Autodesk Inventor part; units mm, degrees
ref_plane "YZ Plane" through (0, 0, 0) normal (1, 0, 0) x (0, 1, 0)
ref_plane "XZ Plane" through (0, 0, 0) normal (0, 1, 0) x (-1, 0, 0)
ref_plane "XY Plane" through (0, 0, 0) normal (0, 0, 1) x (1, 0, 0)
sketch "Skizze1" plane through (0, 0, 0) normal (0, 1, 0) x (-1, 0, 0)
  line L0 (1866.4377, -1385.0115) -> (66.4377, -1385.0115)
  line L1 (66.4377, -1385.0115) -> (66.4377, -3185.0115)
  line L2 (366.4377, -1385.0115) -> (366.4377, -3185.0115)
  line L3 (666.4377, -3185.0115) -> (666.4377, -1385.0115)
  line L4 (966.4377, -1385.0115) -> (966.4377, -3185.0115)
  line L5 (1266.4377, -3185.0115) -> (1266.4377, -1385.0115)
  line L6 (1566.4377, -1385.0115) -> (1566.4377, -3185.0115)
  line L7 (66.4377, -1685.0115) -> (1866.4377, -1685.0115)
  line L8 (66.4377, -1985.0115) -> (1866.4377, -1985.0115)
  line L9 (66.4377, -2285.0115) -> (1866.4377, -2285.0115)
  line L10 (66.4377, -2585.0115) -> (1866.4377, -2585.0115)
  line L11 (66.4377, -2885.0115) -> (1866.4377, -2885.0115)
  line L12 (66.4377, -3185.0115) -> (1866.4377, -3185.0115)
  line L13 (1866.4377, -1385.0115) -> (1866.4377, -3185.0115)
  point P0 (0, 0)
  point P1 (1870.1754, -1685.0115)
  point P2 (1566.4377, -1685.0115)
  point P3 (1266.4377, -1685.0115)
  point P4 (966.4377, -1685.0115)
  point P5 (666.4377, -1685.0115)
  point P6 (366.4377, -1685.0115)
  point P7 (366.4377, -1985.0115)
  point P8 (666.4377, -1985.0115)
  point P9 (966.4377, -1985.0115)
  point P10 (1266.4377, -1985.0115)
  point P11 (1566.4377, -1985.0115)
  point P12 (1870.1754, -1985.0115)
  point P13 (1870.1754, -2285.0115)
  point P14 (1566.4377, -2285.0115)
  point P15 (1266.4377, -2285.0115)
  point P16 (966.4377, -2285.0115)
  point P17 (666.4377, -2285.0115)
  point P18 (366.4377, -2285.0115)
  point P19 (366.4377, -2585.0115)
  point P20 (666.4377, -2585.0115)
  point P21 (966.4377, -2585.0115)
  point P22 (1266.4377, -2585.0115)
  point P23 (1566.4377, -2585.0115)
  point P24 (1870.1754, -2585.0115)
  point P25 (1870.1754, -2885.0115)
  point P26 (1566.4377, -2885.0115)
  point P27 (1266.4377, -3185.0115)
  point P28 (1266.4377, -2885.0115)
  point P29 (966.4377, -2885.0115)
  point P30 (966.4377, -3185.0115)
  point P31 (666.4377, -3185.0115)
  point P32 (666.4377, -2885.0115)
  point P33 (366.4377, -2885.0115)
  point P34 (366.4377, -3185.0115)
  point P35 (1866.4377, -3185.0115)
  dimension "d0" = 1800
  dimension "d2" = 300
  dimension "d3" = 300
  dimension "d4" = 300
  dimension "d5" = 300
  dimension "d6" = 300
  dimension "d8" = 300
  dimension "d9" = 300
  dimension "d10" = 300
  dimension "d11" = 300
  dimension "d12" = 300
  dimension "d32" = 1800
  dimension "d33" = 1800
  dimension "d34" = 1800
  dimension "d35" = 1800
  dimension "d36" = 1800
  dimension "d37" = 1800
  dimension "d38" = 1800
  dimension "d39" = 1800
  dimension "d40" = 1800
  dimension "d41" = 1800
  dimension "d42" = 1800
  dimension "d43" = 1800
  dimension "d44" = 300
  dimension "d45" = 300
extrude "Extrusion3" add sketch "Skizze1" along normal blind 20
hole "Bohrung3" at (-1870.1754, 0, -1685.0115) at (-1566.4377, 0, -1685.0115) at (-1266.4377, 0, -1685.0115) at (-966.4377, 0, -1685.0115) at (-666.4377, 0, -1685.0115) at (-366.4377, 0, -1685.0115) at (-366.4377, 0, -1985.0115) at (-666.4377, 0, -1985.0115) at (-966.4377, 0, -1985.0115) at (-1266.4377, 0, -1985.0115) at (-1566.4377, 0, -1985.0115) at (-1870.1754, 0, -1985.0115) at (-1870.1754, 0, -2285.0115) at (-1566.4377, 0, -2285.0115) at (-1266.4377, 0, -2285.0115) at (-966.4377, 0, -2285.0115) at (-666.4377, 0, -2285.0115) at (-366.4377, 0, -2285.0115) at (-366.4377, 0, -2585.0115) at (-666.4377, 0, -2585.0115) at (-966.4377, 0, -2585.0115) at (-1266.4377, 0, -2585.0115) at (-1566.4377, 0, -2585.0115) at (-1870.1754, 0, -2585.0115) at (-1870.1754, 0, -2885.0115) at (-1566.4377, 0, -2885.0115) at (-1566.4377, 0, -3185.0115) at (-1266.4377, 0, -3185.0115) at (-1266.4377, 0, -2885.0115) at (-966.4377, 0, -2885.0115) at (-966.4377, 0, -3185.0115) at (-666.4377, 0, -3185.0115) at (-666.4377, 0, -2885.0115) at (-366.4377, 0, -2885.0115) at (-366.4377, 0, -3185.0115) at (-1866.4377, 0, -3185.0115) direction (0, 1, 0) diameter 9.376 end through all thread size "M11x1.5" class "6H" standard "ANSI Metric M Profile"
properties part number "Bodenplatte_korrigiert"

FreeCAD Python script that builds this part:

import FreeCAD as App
import Part
import Sketcher
from FreeCAD import Vector
Q = App.Units.Quantity


def add_polygon(sketch, points):
    """Adds a closed chain of lines whose ends are joined by coincident constraints."""
    first, n = sketch.GeometryCount, len(points)
    for a, b in zip(points, points[1:] + points[:1]):
        sketch.addGeometry(Part.LineSegment(App.Vector(*a, 0), App.Vector(*b, 0)), False)
    for i in range(n):
        sketch.addConstraint(Sketcher.Constraint("Coincident", first + i, 2, first + (i + 1) % n, 1))

doc = App.newDocument("Part")
body = doc.addObject("PartDesign::Body", "Body")

sketch1 = doc.addObject("Sketcher::SketchObject", "Sketch")
body.addObject(sketch1)
sketch1.AttachmentSupport = (doc.XZ_Plane, [""])
sketch1.MapMode = "FlatFace"
add_polygon(sketch1, [(-1866, -1385), (-66, -1385), (-66, -3185), (-1866, -3185)])
sketch1.addConstraint(Sketcher.Constraint("Horizontal", 0))
sketch1.addConstraint(Sketcher.Constraint("Vertical", 1))
sketch1.addConstraint(Sketcher.Constraint("Horizontal", 2))
sketch1.addConstraint(Sketcher.Constraint("Vertical", 3))
sketch1.addConstraint(Sketcher.Constraint("Equal", 2, 1))
sketch1.addConstraint(Sketcher.Constraint("DistanceX", 0, 1, 0, 2, Q("1800 mm")))
sketch1.addConstraint(Sketcher.Constraint("DistanceX", 0, 2, -1, 1, Q("66.4377 mm")))
sketch1.addConstraint(Sketcher.Constraint("DistanceY", 0, 2, -1, 1, Q("1385.0115 mm")))
pad1 = doc.addObject("PartDesign::Pad", "Pad")
body.addObject(pad1)
pad1.Profile = sketch1
pad1.Length = 20
pad1.Reversed = True

sketch2 = doc.addObject("Sketcher::SketchObject", "Sketch001")
body.addObject(sketch2)
sketch2.AttachmentSupport = (doc.XZ_Plane, [""])
sketch2.MapMode = "FlatFace"
sketch2.addGeometry(Part.Circle(Vector(-1870.2, -1685, 0), Vector(0, 0, 1), 4.7), False)
sketch2.addGeometry(Part.Circle(Vector(-1566.4, -1685, 0), Vector(0, 0, 1), 4.7), False)
sketch2.addGeometry(Part.Circle(Vector(-1266.4, -1685, 0), Vector(0, 0, 1), 4.7), False)
sketch2.addGeometry(Part.Circle(Vector(-966.4, -1685, 0), Vector(0, 0, 1), 4.7), False)
sketch2.addGeometry(Part.Circle(Vector(-666.4, -1685, 0), Vector(0, 0, 1), 4.7), False)
sketch2.addGeometry(Part.Circle(Vector(-366.4, -1685, 0), Vector(0, 0, 1), 4.7), False)
sketch2.addGeometry(Part.Circle(Vector(-366.4, -1985, 0), Vector(0, 0, 1), 4.7), False)
sketch2.addGeometry(Part.Circle(Vector(-666.4, -1985, 0), Vector(0, 0, 1), 4.7), False)
sketch2.addGeometry(Part.Circle(Vector(-966.4, -1985, 0), Vector(0, 0, 1), 4.7), False)
sketch2.addGeometry(Part.Circle(Vector(-1266.4, -1985, 0), Vector(0, 0, 1), 4.7), False)
sketch2.addGeometry(Part.Circle(Vector(-1566.4, -1985, 0), Vector(0, 0, 1), 4.7), False)
sketch2.addGeometry(Part.Circle(Vector(-1870.2, -1985, 0), Vector(0, 0, 1), 4.7), False)
sketch2.addGeometry(Part.Circle(Vector(-1870.2, -2285, 0), Vector(0, 0, 1), 4.7), False)
sketch2.addGeometry(Part.Circle(Vector(-1566.4, -2285, 0), Vector(0, 0, 1), 4.7), False)
sketch2.addGeometry(Part.Circle(Vector(-1266.4, -2285, 0), Vector(0, 0, 1), 4.7), False)
sketch2.addGeometry(Part.Circle(Vector(-966.4, -2285, 0), Vector(0, 0, 1), 4.7), False)
sketch2.addGeometry(Part.Circle(Vector(-666.4, -2285, 0), Vector(0, 0, 1), 4.7), False)
sketch2.addGeometry(Part.Circle(Vector(-366.4, -2285, 0), Vector(0, 0, 1), 4.7), False)
sketch2.addGeometry(Part.Circle(Vector(-366.4, -2585, 0), Vector(0, 0, 1), 4.7), False)
sketch2.addGeometry(Part.Circle(Vector(-666.4, -2585, 0), Vector(0, 0, 1), 4.7), False)
sketch2.addGeometry(Part.Circle(Vector(-966.4, -2585, 0), Vector(0, 0, 1), 4.7), False)
sketch2.addGeometry(Part.Circle(Vector(-1266.4, -2585, 0), Vector(0, 0, 1), 4.7), False)
sketch2.addGeometry(Part.Circle(Vector(-1566.4, -2585, 0), Vector(0, 0, 1), 4.7), False)
sketch2.addGeometry(Part.Circle(Vector(-1870.2, -2585, 0), Vector(0, 0, 1), 4.7), False)
sketch2.addGeometry(Part.Circle(Vector(-1870.2, -2885, 0), Vector(0, 0, 1), 4.7), False)
sketch2.addGeometry(Part.Circle(Vector(-1566.4, -2885, 0), Vector(0, 0, 1), 4.7), False)
sketch2.addGeometry(Part.Circle(Vector(-1566.4, -3185, 0), Vector(0, 0, 1), 4.7), False)
sketch2.addGeometry(Part.Circle(Vector(-1266.4, -3185, 0), Vector(0, 0, 1), 4.7), False)
sketch2.addGeometry(Part.Circle(Vector(-1266.4, -2885, 0), Vector(0, 0, 1), 4.7), False)
sketch2.addGeometry(Part.Circle(Vector(-966.4, -2885, 0), Vector(0, 0, 1), 4.7), False)
sketch2.addGeometry(Part.Circle(Vector(-966.4, -3185, 0), Vector(0, 0, 1), 4.7), False)
sketch2.addGeometry(Part.Circle(Vector(-666.4, -3185, 0), Vector(0, 0, 1), 4.7), False)
sketch2.addGeometry(Part.Circle(Vector(-666.4, -2885, 0), Vector(0, 0, 1), 4.7), False)
sketch2.addGeometry(Part.Circle(Vector(-366.4, -2885, 0), Vector(0, 0, 1), 4.7), False)
sketch2.addGeometry(Part.Circle(Vector(-366.4, -3185, 0), Vector(0, 0, 1), 4.7), False)
sketch2.addGeometry(Part.Circle(Vector(-1866.4, -3185, 0), Vector(0, 0, 1), 4.7), False)
sketch2.addConstraint(Sketcher.Constraint("Equal", 0, 1))
sketch2.addConstraint(Sketcher.Constraint("Equal", 1, 2))
sketch2.addConstraint(Sketcher.Constraint("Equal", 2, 3))
sketch2.addConstraint(Sketcher.Constraint("Equal", 3, 4))
sketch2.addConstraint(Sketcher.Constraint("Equal", 4, 5))
sketch2.addConstraint(Sketcher.Constraint("Equal", 5, 6))
sketch2.addConstraint(Sketcher.Constraint("Equal", 6, 7))
sketch2.addConstraint(Sketcher.Constraint("Equal", 7, 8))
sketch2.addConstraint(Sketcher.Constraint("Equal", 8, 9))
sketch2.addConstraint(Sketcher.Constraint("Equal", 9, 10))
sketch2.addConstraint(Sketcher.Constraint("Equal", 10, 11))
sketch2.addConstraint(Sketcher.Constraint("Equal", 11, 12))
sketch2.addConstraint(Sketcher.Constraint("Equal", 12, 13))
sketch2.addConstraint(Sketcher.Constraint("Equal", 13, 14))
sketch2.addConstraint(Sketcher.Constraint("Equal", 14, 15))
sketch2.addConstraint(Sketcher.Constraint("Equal", 15, 16))
sketch2.addConstraint(Sketcher.Constraint("Equal", 16, 17))
sketch2.addConstraint(Sketcher.Constraint("Equal", 17, 18))
sketch2.addConstraint(Sketcher.Constraint("Equal", 18, 19))
sketch2.addConstraint(Sketcher.Constraint("Equal", 19, 20))
sketch2.addConstraint(Sketcher.Constraint("Equal", 20, 21))
sketch2.addConstraint(Sketcher.Constraint("Equal", 21, 22))
sketch2.addConstraint(Sketcher.Constraint("Equal", 22, 23))
sketch2.addConstraint(Sketcher.Constraint("Equal", 23, 24))
sketch2.addConstraint(Sketcher.Constraint("Equal", 24, 25))
sketch2.addConstraint(Sketcher.Constraint("Equal", 25, 26))
sketch2.addConstraint(Sketcher.Constraint("Equal", 26, 27))
sketch2.addConstraint(Sketcher.Constraint("Equal", 27, 28))
sketch2.addConstraint(Sketcher.Constraint("Equal", 28, 29))
sketch2.addConstraint(Sketcher.Constraint("Equal", 29, 30))
sketch2.addConstraint(Sketcher.Constraint("Equal", 30, 31))
sketch2.addConstraint(Sketcher.Constraint("Equal", 31, 32))
sketch2.addConstraint(Sketcher.Constraint("Equal", 32, 33))
sketch2.addConstraint(Sketcher.Constraint("Equal", 33, 34))
sketch2.addConstraint(Sketcher.Constraint("Equal", 34, 35))
sketch2.addConstraint(Sketcher.Constraint("Horizontal", 0, 3, 1, 3))
sketch2.addConstraint(Sketcher.Constraint("Horizontal", 1, 3, 2, 3))
sketch2.addConstraint(Sketcher.Constraint("Horizontal", 2, 3, 3, 3))
sketch2.addConstraint(Sketcher.Constraint("Horizontal", 3, 3, 4, 3))
sketch2.addConstraint(Sketcher.Constraint("Horizontal", 4, 3, 5, 3))
sketch2.addConstraint(Sketcher.Constraint("Horizontal", 6, 3, 7, 3))
sketch2.addConstraint(Sketcher.Constraint("Horizontal", 7, 3, 8, 3))
sketch2.addConstraint(Sketcher.Constraint("Horizontal", 8, 3, 9, 3))
sketch2.addConstraint(Sketcher.Constraint("Horizontal", 9, 3, 10, 3))
sketch2.addConstraint(Sketcher.Constraint("Horizontal", 10, 3, 11, 3))
sketch2.addConstraint(Sketcher.Constraint("Horizontal", 12, 3, 13, 3))
sketch2.addConstraint(Sketcher.Constraint("Horizontal", 13, 3, 14, 3))
sketch2.addConstraint(Sketcher.Constraint("Horizontal", 14, 3, 15, 3))
sketch2.addConstraint(Sketcher.Constraint("Horizontal", 15, 3, 16, 3))
sketch2.addConstraint(Sketcher.Constraint("Horizontal", 16, 3, 17, 3))
sketch2.addConstraint(Sketcher.Constraint("Horizontal", 18, 3, 19, 3))
sketch2.addConstraint(Sketcher.Constraint("Horizontal", 19, 3, 20, 3))
sketch2.addConstraint(Sketcher.Constraint("Horizontal", 20, 3, 21, 3))
sketch2.addConstraint(Sketcher.Constraint("Horizontal", 21, 3, 22, 3))
sketch2.addConstraint(Sketcher.Constraint("Horizontal", 22, 3, 23, 3))
sketch2.addConstraint(Sketcher.Constraint("Horizontal", 24, 3, 25, 3))
sketch2.addConstraint(Sketcher.Constraint("Horizontal", 26, 3, 27, 3))
sketch2.addConstraint(Sketcher.Constraint("Horizontal", 25, 3, 28, 3))
sketch2.addConstraint(Sketcher.Constraint("Horizontal", 28, 3, 29, 3))
sketch2.addConstraint(Sketcher.Constraint("Horizontal", 27, 3, 30, 3))
sketch2.addConstraint(Sketcher.Constraint("Horizontal", 30, 3, 31, 3))
sketch2.addConstraint(Sketcher.Constraint("Horizontal", 29, 3, 32, 3))
sketch2.addConstraint(Sketcher.Constraint("Horizontal", 32, 3, 33, 3))
sketch2.addConstraint(Sketcher.Constraint("Horizontal", 31, 3, 34, 3))
sketch2.addConstraint(Sketcher.Constraint("Horizontal", 34, 3, 35, 3))
sketch2.addConstraint(Sketcher.Constraint("Vertical", 5, 3, 6, 3))
sketch2.addConstraint(Sketcher.Constraint("Vertical", 4, 3, 7, 3))
sketch2.addConstraint(Sketcher.Constraint("Vertical", 3, 3, 8, 3))
sketch2.addConstraint(Sketcher.Constraint("Vertical", 2, 3, 9, 3))
sketch2.addConstraint(Sketcher.Constraint("Vertical", 1, 3, 10, 3))
sketch2.addConstraint(Sketcher.Constraint("Vertical", 0, 3, 11, 3))
sketch2.addConstraint(Sketcher.Constraint("Vertical", 11, 3, 12, 3))
sketch2.addConstraint(Sketcher.Constraint("Vertical", 10, 3, 13, 3))
sketch2.addConstraint(Sketcher.Constraint("Vertical", 9, 3, 14, 3))
sketch2.addConstraint(Sketcher.Constraint("Vertical", 8, 3, 15, 3))
sketch2.addConstraint(Sketcher.Constraint("Vertical", 7, 3, 16, 3))
sketch2.addConstraint(Sketcher.Constraint("Vertical", 6, 3, 17, 3))
sketch2.addConstraint(Sketcher.Constraint("Vertical", 17, 3, 18, 3))
sketch2.addConstraint(Sketcher.Constraint("Vertical", 16, 3, 19, 3))
sketch2.addConstraint(Sketcher.Constraint("Vertical", 15, 3, 20, 3))
sketch2.addConstraint(Sketcher.Constraint("Vertical", 14, 3, 21, 3))
sketch2.addConstraint(Sketcher.Constraint("Vertical", 13, 3, 22, 3))
sketch2.addConstraint(Sketcher.Constraint("Vertical", 12, 3, 23, 3))
sketch2.addConstraint(Sketcher.Constraint("Vertical", 23, 3, 24, 3))
sketch2.addConstraint(Sketcher.Constraint("Vertical", 22, 3, 25, 3))
sketch2.addConstraint(Sketcher.Constraint("Vertical", 25, 3, 26, 3))
sketch2.addConstraint(Sketcher.Constraint("Vertical", 21, 3, 27, 3))
sketch2.addConstraint(Sketcher.Constraint("Vertical", 27, 3, 28, 3))
sketch2.addConstraint(Sketcher.Constraint("Vertical", 20, 3, 29, 3))
sketch2.addConstraint(Sketcher.Constraint("Vertical", 29, 3, 30, 3))
sketch2.addConstraint(Sketcher.Constraint("Vertical", 19, 3, 31, 3))
sketch2.addConstraint(Sketcher.Constraint("Vertical", 31, 3, 32, 3))
sketch2.addConstraint(Sketcher.Constraint("Vertical", 18, 3, 33, 3))
sketch2.addConstraint(Sketcher.Constraint("Vertical", 33, 3, 34, 3))
sketch2.addConstraint(Sketcher.Constraint("Diameter", 0, Q("9.376 mm")))
sketch2.addConstraint(Sketcher.Constraint("DistanceX", 1, 3, 2, 3, Q("300 mm")))
sketch2.addConstraint(Sketcher.Constraint("DistanceX", 2, 3, 3, 3, Q("300 mm")))
sketch2.addConstraint(Sketcher.Constraint("DistanceX", 3, 3, 4, 3, Q("300 mm")))
sketch2.addConstraint(Sketcher.Constraint("DistanceX", 4, 3, 5, 3, Q("300 mm")))
sketch2.addConstraint(Sketcher.Constraint("DistanceY", 6, 3, 5, 3, Q("300 mm")))
sketch2.addConstraint(Sketcher.Constraint("DistanceY", 12, 3, 11, 3, Q("300 mm")))
sketch2.addConstraint(Sketcher.Constraint("DistanceY", 18, 3, 17, 3, Q("300 mm")))
sketch2.addConstraint(Sketcher.Constraint("DistanceY", 24, 3, 23, 3, Q("300 mm")))
sketch2.addConstraint(Sketcher.Constraint("DistanceY", 26, 3, 25, 3, Q("300 mm")))
sketch2.addConstraint(Sketcher.Constraint("DistanceX", 35, 3, 26, 3, Q("300 mm")))
sketch2.addConstraint(Sketcher.Constraint("DistanceX", 0, 3, -1, 1, Q("1870.1754 mm")))
sketch2.addConstraint(Sketcher.Constraint("DistanceY", 0, 3, -1, 1, Q("1685.0115 mm")))
sketch2.addConstraint(Sketcher.Constraint("DistanceX", 1, 3, -1, 1, Q("1566.4377 mm")))
doc.recompute()
hole = doc.addObject("PartDesign::Hole", "Hole")
body.addObject(hole)
hole.Profile = sketch2
hole.ThreadType = "None"
hole.Diameter = 9.376
hole.DepthType = "ThroughAll"

doc.recompute()
